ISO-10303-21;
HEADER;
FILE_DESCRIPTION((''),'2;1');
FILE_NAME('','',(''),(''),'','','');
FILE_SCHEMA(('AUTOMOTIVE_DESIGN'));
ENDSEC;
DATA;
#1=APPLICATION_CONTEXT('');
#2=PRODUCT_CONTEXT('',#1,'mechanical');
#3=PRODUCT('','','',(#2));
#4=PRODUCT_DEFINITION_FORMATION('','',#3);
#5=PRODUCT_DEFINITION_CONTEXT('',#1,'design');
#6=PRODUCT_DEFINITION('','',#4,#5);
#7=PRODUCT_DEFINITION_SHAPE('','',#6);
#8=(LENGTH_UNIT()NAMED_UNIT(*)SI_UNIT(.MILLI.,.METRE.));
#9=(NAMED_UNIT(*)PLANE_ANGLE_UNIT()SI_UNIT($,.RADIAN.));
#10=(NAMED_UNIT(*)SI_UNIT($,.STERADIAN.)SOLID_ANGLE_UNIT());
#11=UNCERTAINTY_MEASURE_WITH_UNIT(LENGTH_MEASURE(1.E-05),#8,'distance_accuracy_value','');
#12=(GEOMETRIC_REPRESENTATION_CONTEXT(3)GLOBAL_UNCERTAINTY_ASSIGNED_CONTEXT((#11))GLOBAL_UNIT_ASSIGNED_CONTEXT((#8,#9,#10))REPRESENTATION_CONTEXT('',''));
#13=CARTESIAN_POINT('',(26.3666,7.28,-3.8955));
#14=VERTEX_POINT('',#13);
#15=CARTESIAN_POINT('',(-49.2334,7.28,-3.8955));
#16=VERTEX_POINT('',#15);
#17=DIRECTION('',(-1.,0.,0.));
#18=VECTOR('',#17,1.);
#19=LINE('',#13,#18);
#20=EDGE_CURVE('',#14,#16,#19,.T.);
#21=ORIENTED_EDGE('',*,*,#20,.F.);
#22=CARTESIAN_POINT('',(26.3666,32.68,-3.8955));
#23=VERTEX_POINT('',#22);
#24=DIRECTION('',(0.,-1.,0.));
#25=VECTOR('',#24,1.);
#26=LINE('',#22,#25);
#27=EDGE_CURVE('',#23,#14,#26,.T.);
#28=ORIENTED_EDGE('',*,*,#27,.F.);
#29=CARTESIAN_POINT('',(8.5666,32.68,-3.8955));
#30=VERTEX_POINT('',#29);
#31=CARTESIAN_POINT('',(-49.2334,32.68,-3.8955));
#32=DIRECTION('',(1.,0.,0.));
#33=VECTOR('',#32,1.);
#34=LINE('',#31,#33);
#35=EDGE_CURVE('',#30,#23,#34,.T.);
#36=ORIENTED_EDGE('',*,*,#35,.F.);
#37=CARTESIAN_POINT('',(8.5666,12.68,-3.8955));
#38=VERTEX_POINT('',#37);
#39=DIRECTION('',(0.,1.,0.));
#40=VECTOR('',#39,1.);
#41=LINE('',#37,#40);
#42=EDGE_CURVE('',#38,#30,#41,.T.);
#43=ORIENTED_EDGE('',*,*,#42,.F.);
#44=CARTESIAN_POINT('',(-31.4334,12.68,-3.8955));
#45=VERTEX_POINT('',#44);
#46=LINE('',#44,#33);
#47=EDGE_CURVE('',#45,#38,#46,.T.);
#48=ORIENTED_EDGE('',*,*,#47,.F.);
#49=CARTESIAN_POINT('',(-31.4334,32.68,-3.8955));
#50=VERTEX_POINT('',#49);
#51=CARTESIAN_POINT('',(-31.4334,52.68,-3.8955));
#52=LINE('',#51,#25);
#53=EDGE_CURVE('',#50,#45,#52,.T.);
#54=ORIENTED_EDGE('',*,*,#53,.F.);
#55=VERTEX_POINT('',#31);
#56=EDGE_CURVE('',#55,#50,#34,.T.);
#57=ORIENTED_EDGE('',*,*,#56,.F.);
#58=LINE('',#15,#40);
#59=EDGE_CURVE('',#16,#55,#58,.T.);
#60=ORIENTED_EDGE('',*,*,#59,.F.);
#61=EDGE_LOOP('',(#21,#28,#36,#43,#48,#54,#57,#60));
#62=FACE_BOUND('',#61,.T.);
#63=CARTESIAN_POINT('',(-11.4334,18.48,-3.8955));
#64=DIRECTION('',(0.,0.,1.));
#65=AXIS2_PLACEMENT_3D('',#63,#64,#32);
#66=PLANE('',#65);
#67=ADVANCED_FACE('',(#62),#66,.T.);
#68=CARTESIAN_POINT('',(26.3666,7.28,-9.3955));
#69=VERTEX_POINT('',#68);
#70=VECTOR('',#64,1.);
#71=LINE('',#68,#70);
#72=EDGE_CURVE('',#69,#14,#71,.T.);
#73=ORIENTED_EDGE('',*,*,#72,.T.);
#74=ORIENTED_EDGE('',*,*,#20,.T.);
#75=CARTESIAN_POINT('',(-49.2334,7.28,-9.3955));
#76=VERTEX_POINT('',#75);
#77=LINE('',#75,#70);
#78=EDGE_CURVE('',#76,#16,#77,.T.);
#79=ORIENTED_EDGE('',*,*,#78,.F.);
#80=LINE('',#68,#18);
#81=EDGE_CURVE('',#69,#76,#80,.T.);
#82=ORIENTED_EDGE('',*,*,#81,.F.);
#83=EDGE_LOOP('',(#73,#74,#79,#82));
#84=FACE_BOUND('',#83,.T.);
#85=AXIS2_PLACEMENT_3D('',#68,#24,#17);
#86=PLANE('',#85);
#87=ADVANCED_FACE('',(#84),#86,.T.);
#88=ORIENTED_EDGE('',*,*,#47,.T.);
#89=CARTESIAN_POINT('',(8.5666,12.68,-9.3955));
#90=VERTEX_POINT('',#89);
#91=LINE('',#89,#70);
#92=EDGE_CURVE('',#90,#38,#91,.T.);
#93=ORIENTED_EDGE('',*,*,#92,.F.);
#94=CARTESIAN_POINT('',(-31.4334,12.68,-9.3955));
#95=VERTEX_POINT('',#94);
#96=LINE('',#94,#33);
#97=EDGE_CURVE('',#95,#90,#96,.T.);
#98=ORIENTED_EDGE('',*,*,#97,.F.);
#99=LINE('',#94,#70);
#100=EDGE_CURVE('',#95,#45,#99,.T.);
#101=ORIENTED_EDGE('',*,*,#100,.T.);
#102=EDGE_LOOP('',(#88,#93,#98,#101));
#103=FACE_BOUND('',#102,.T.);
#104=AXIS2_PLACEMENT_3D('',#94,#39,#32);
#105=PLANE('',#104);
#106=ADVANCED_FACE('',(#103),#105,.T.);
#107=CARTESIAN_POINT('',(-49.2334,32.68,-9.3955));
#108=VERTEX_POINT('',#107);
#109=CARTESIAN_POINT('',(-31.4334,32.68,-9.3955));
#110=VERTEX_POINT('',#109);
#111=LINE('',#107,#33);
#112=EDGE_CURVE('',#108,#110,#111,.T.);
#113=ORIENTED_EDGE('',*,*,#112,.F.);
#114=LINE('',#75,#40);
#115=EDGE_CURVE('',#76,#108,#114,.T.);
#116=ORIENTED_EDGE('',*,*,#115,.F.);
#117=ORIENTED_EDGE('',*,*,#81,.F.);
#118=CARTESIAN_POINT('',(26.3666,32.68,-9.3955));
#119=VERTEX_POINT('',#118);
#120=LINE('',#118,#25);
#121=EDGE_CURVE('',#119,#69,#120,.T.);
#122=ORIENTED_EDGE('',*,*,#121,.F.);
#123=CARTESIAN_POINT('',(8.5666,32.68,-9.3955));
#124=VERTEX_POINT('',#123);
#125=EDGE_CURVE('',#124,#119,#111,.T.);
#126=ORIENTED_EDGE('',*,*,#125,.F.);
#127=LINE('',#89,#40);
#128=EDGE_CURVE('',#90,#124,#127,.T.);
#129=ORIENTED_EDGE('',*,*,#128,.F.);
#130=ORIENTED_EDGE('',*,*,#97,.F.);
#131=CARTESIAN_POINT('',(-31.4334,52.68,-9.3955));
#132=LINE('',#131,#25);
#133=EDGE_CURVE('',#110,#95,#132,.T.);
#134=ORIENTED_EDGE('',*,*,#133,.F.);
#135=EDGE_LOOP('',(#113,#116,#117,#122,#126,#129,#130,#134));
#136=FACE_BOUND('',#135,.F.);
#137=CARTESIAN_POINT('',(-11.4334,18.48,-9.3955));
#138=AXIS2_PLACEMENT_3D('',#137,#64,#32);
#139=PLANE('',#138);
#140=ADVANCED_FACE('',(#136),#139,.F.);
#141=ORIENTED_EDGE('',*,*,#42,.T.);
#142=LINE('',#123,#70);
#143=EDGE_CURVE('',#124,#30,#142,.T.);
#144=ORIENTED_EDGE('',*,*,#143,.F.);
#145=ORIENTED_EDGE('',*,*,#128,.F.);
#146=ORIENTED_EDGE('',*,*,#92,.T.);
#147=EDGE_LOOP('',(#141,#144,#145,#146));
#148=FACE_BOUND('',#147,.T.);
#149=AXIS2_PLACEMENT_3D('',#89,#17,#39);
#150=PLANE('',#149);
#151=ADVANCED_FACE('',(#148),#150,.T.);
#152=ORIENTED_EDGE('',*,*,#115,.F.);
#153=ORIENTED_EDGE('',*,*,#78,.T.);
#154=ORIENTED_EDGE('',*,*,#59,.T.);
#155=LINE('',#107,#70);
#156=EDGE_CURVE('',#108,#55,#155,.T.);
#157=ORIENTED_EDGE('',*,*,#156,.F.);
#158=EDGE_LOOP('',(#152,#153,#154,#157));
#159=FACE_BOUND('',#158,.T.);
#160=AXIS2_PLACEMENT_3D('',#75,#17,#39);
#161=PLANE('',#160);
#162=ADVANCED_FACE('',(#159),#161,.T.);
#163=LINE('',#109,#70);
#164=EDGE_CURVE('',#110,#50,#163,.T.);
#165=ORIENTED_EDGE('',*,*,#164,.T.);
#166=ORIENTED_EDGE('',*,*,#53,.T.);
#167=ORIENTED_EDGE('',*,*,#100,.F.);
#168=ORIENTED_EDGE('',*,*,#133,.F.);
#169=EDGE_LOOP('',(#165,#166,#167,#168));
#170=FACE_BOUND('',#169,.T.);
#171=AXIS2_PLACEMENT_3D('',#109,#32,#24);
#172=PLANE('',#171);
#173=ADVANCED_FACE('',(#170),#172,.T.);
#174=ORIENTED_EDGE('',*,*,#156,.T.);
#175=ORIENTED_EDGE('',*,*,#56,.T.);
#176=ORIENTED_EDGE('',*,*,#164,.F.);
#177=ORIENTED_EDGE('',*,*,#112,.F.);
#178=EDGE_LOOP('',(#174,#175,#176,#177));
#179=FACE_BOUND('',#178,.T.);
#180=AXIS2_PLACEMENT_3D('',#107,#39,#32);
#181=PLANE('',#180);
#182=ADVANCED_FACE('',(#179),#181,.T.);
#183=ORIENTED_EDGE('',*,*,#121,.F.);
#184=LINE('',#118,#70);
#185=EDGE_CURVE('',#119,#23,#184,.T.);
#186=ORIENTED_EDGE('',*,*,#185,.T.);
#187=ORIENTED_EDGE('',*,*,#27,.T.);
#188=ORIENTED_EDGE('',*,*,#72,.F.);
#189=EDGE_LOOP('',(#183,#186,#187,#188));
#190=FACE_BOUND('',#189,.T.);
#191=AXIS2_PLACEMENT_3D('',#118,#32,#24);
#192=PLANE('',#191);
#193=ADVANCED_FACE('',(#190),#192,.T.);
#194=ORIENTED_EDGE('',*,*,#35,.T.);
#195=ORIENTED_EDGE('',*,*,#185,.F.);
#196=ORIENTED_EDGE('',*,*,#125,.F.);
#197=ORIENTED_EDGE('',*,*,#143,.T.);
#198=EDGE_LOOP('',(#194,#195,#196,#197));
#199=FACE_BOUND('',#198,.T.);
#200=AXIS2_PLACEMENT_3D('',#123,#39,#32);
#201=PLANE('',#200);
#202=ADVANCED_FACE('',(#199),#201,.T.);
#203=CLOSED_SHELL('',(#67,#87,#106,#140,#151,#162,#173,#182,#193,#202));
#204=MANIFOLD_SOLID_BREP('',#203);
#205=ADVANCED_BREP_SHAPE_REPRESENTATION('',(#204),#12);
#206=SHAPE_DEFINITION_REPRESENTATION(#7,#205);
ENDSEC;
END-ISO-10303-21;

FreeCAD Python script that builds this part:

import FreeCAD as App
import Part
import Sketcher


def add_polygon(sketch, points):
    """Adds a closed chain of lines whose ends are joined by coincident constraints."""
    first, n = sketch.GeometryCount, len(points)
    for a, b in zip(points, points[1:] + points[:1]):
        sketch.addGeometry(Part.LineSegment(App.Vector(*a, 0), App.Vector(*b, 0)), False)
    for i in range(n):
        sketch.addConstraint(Sketcher.Constraint("Coincident", first + i, 2, first + (i + 1) % n, 1))

doc = App.newDocument("Part")
body = doc.addObject("PartDesign::Body", "Body")

# Sketch on XY plane
sketch1 = body.newObject("Sketcher::SketchObject", "Sketch")
sketch1.AttachmentSupport = (doc.getObject("XY_Plane"), [""])
sketch1.MapMode = "FlatFace"
sketch1.AttachmentOffset = App.Placement(App.Vector(0, 0, -9.3955), App.Rotation())
add_polygon(sketch1, [(-31, 13), (-31, 33), (-49, 33), (-49, 7), (26, 7), (26, 33), (9, 33), (9, 13)])  # lines 0-7
sketch1.addConstraint([
    Sketcher.Constraint("Vertical", 0),
    Sketcher.Constraint("Horizontal", 1),
    Sketcher.Constraint("Vertical", 2),
    Sketcher.Constraint("Horizontal", 3),
    Sketcher.Constraint("Vertical", 4),
    Sketcher.Constraint("Horizontal", 5),
    Sketcher.Constraint("Vertical", 6),
    Sketcher.Constraint("Horizontal", 7),
    Sketcher.Constraint("Horizontal", 1, 2, 4, 2),
    Sketcher.Constraint("Equal", 1, 5),
    Sketcher.Constraint("DistanceX", 7, 2, 7, 1, 40.0),
    Sketcher.Constraint("DistanceY", 0, 1, 0, 2, 20.0),
    Sketcher.Constraint("DistanceX", 1, 2, 1, 1, 17.8),
    Sketcher.Constraint("DistanceY", 2, 2, 2, 1, 25.4),
    Sketcher.Constraint("DistanceY", -1, 1, 0, 2, 32.68),
    Sketcher.Constraint("DistanceX", 0, 2, -1, 1, 31.4334),
])
pad1 = body.newObject("PartDesign::Pad", "Pad")
pad1.Profile = sketch1
pad1.Length = 5.5

doc.recompute()
